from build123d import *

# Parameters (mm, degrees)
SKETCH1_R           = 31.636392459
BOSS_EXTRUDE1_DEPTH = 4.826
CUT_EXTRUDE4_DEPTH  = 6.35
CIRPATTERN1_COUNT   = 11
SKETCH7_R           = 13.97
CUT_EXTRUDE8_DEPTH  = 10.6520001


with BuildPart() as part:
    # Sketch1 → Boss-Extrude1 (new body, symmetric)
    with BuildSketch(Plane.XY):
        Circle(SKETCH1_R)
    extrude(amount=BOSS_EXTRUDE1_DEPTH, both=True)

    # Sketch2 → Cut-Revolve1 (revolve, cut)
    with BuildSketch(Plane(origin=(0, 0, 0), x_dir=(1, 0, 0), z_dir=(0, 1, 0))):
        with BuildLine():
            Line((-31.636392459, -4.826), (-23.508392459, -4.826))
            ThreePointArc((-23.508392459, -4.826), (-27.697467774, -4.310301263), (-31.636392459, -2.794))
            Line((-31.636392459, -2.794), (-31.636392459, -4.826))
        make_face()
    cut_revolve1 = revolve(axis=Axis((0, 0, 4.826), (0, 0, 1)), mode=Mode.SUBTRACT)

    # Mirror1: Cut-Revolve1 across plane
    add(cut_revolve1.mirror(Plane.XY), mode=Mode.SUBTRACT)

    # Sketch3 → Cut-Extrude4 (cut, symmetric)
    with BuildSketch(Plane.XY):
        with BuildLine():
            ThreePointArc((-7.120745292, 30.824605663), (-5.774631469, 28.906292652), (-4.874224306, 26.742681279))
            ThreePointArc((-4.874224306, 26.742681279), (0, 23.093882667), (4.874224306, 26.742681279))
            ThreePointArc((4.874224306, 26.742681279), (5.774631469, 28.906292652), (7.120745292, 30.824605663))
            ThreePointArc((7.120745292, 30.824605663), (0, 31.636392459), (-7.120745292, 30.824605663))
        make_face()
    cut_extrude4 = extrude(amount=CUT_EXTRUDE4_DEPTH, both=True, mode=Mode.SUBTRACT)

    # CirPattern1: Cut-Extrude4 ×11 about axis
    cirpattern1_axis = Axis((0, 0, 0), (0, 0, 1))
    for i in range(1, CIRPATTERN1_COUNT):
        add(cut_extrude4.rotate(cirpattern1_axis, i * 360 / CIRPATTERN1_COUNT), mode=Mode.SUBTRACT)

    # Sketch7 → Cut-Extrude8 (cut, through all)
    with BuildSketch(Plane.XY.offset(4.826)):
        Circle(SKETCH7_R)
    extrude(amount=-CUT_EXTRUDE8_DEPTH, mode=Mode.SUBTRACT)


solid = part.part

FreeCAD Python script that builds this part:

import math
import FreeCAD as App
import Part
import Sketcher
from FreeCAD import Vector
Q = App.Units.Quantity

doc = App.newDocument("Part")
params = doc.addObject("Spreadsheet::Sheet", "Params")
for row, (alias, value) in enumerate([
    ("pad1_length", "0.38 in"),
    ("sketch2_radius", "0.68 in"),
    ("sketch2_width", "0.32 in"),
    ("groove_angle", "360 deg"),
    ("sketch3_radius", "0.2 in"),
    ("sketch3_radius2", "0.425 in"),
    ("pocket1_length", "0.5 in"),
    ("sketch4_diameter", "1.1 in"),
], start=1):
    params.set(f"A{row}", alias)
    params.set(f"B{row}", "=" + value)
    params.setAlias(f"B{row}", alias)

body = doc.addObject("PartDesign::Body", "Body")

# Sketch on XY plane
sketch1 = doc.addObject("Sketcher::SketchObject", "Sketch")
body.addObject(sketch1)
sketch1.AttachmentSupport = (doc.XY_Plane, [""])
sketch1.MapMode = "FlatFace"
sketch1.addGeometry(Part.Circle(Vector(0, 0, 0), Vector(0, 0, 1), 31.636392), False)
sketch1.addConstraint([
    Sketcher.Constraint("Coincident", 0, 3, -1, 1),
    Sketcher.Constraint("Diameter", 0, 63.272785),
])
pad1 = doc.addObject("PartDesign::Pad", "Pad")
body.addObject(pad1)
pad1.Profile = sketch1
pad1.setExpression("Length", "Params.pad1_length")
pad1.Midplane = True

# Sketch on XZ plane
sketch2 = doc.addObject("Sketcher::SketchObject", "Sketch001")
body.addObject(sketch2)
sketch2.AttachmentSupport = (doc.XZ_Plane, [""])
sketch2.MapMode = "FlatFace"
sketch2.addGeometry([
    Part.LineSegment(Vector(-31.636392, 4.826, 0), Vector(-23.508392, 4.826, 0)),
    Part.ArcOfCircle(Part.Circle(Vector(-23.508392, -12.446, 0), Vector(0, 0, 1), 17.272), math.radians(90), math.radians(118.072487)),
    Part.LineSegment(Vector(-31.636392, 2.794, 0), Vector(-31.636392, 4.826, 0)),
], False)
sketch2.addConstraint([
    Sketcher.Constraint("Tangent", 0, 2, 1, 1),
    Sketcher.Constraint("Coincident", 1, 2, 2, 1),
    Sketcher.Constraint("Coincident", 2, 2, 0, 1),
    Sketcher.Constraint("Horizontal", 0),
    Sketcher.Constraint("Vertical", 2),
    Sketcher.Constraint("Radius", 1, Q("0.68 in")),
    Sketcher.Constraint("DistanceX", 0, 1, 0, 2, Q("0.32 in")),
    Sketcher.Constraint("DistanceY", 1, 3, -1, 1, Q("0.49 in")),
    Sketcher.Constraint("DistanceX", 1, 3, -1, 1, 23.508392),
])
sketch2.setExpression("Constraints[5]", "Params.sketch2_radius")
sketch2.setExpression("Constraints[6]", "Params.sketch2_width")
groove = doc.addObject("PartDesign::Groove", "Groove")
body.addObject(groove)
groove.Profile = sketch2
groove.ReferenceAxis = (sketch2, ["V_Axis"])
groove.setExpression("Angle", "Params.groove_angle")
doc.recompute()

mirrored = doc.addObject("PartDesign::Mirrored", "Mirrored")
body.addObject(mirrored)
mirrored.Originals = [groove]
mirrored.MirrorPlane = (doc.XY_Plane, [""])
body.Tip = mirrored

# Sketch on XY plane
sketch3 = doc.addObject("Sketcher::SketchObject", "Sketch002")
body.addObject(sketch3)
sketch3.AttachmentSupport = (doc.XY_Plane, [""])
sketch3.MapMode = "FlatFace"
sketch3.addGeometry([
    Part.ArcOfCircle(Part.Circle(Vector(-15.231951, 23.701378, 0), Vector(0, 0, 1), 10.795), math.radians(16.363636), math.radians(41.289469)),
    Part.ArcOfCircle(Part.Circle(Vector(0, 28.173883, 0), Vector(0, 0, 1), 5.08), math.radians(-163.636364), math.radians(-16.363636)),
    Part.ArcOfCircle(Part.Circle(Vector(15.231951, 23.701378, 0), Vector(0, 0, 1), 10.795), math.radians(138.710531), math.radians(163.636364)),
    Part.ArcOfCircle(Part.Circle(Vector(0, 0, 0), Vector(0, 0, 1), 31.636392), math.radians(76.992369), math.radians(103.007631)),
], False)
sketch3.addConstraint([
    Sketcher.Constraint("Tangent", 0, 1, 1, 1),
    Sketcher.Constraint("Tangent", 1, 2, 2, 2),
    Sketcher.Constraint("Coincident", 2, 1, 3, 1),
    Sketcher.Constraint("Coincident", 3, 2, 0, 2),
    Sketcher.Constraint("Coincident", 3, 3, -1, 1),
    Sketcher.Constraint("Equal", 0, 2),
    Sketcher.Constraint("Symmetric", 0, 3, 2, 3, -2),
    Sketcher.Constraint("Radius", 1, Q("0.2 in")),
    Sketcher.Constraint("Radius", 0, Q("0.425 in")),
    Sketcher.Constraint("Radius", 3, 31.636392),
    Sketcher.Constraint("DistanceX", 0, 3, 2, 3, 30.463902),
    Sketcher.Constraint("DistanceY", -1, 1, 0, 3, 23.701378),
])
sketch3.setExpression("Constraints[7]", "Params.sketch3_radius")
sketch3.setExpression("Constraints[8]", "Params.sketch3_radius2")
pocket1 = doc.addObject("PartDesign::Pocket", "Pocket")
body.addObject(pocket1)
pocket1.Profile = sketch3
pocket1.setExpression("Length", "Params.pocket1_length")
pocket1.Midplane = True
doc.recompute()

polarpattern = doc.addObject("PartDesign::PolarPattern", "PolarPattern")
body.addObject(polarpattern)
polarpattern.Originals = [pocket1]
polarpattern.Axis = (doc.Z_Axis, [""])
polarpattern.Angle = 360
polarpattern.Occurrences = 11
body.Tip = polarpattern

# Sketch on XY plane
sketch4 = doc.addObject("Sketcher::SketchObject", "Sketch003")
body.addObject(sketch4)
sketch4.AttachmentSupport = (doc.XY_Plane, [""])
sketch4.MapMode = "FlatFace"
sketch4.AttachmentOffset = App.Placement(Vector(0, 0, 0.19 * 25.4), App.Rotation())
sketch4.addGeometry(Part.Circle(Vector(0, 0, 0), Vector(0, 0, 1), 13.97), False)
sketch4.addConstraint([
    Sketcher.Constraint("Coincident", 0, 3, -1, 1),
    Sketcher.Constraint("Diameter", 0, Q("1.1 in")),
])
sketch4.setExpression("Constraints[1]", "Params.sketch4_diameter")
pocket2 = doc.addObject("PartDesign::Pocket", "Pocket001")
body.addObject(pocket2)
pocket2.Profile = sketch4
pocket2.Type = "ThroughAll"

doc.recompute()
